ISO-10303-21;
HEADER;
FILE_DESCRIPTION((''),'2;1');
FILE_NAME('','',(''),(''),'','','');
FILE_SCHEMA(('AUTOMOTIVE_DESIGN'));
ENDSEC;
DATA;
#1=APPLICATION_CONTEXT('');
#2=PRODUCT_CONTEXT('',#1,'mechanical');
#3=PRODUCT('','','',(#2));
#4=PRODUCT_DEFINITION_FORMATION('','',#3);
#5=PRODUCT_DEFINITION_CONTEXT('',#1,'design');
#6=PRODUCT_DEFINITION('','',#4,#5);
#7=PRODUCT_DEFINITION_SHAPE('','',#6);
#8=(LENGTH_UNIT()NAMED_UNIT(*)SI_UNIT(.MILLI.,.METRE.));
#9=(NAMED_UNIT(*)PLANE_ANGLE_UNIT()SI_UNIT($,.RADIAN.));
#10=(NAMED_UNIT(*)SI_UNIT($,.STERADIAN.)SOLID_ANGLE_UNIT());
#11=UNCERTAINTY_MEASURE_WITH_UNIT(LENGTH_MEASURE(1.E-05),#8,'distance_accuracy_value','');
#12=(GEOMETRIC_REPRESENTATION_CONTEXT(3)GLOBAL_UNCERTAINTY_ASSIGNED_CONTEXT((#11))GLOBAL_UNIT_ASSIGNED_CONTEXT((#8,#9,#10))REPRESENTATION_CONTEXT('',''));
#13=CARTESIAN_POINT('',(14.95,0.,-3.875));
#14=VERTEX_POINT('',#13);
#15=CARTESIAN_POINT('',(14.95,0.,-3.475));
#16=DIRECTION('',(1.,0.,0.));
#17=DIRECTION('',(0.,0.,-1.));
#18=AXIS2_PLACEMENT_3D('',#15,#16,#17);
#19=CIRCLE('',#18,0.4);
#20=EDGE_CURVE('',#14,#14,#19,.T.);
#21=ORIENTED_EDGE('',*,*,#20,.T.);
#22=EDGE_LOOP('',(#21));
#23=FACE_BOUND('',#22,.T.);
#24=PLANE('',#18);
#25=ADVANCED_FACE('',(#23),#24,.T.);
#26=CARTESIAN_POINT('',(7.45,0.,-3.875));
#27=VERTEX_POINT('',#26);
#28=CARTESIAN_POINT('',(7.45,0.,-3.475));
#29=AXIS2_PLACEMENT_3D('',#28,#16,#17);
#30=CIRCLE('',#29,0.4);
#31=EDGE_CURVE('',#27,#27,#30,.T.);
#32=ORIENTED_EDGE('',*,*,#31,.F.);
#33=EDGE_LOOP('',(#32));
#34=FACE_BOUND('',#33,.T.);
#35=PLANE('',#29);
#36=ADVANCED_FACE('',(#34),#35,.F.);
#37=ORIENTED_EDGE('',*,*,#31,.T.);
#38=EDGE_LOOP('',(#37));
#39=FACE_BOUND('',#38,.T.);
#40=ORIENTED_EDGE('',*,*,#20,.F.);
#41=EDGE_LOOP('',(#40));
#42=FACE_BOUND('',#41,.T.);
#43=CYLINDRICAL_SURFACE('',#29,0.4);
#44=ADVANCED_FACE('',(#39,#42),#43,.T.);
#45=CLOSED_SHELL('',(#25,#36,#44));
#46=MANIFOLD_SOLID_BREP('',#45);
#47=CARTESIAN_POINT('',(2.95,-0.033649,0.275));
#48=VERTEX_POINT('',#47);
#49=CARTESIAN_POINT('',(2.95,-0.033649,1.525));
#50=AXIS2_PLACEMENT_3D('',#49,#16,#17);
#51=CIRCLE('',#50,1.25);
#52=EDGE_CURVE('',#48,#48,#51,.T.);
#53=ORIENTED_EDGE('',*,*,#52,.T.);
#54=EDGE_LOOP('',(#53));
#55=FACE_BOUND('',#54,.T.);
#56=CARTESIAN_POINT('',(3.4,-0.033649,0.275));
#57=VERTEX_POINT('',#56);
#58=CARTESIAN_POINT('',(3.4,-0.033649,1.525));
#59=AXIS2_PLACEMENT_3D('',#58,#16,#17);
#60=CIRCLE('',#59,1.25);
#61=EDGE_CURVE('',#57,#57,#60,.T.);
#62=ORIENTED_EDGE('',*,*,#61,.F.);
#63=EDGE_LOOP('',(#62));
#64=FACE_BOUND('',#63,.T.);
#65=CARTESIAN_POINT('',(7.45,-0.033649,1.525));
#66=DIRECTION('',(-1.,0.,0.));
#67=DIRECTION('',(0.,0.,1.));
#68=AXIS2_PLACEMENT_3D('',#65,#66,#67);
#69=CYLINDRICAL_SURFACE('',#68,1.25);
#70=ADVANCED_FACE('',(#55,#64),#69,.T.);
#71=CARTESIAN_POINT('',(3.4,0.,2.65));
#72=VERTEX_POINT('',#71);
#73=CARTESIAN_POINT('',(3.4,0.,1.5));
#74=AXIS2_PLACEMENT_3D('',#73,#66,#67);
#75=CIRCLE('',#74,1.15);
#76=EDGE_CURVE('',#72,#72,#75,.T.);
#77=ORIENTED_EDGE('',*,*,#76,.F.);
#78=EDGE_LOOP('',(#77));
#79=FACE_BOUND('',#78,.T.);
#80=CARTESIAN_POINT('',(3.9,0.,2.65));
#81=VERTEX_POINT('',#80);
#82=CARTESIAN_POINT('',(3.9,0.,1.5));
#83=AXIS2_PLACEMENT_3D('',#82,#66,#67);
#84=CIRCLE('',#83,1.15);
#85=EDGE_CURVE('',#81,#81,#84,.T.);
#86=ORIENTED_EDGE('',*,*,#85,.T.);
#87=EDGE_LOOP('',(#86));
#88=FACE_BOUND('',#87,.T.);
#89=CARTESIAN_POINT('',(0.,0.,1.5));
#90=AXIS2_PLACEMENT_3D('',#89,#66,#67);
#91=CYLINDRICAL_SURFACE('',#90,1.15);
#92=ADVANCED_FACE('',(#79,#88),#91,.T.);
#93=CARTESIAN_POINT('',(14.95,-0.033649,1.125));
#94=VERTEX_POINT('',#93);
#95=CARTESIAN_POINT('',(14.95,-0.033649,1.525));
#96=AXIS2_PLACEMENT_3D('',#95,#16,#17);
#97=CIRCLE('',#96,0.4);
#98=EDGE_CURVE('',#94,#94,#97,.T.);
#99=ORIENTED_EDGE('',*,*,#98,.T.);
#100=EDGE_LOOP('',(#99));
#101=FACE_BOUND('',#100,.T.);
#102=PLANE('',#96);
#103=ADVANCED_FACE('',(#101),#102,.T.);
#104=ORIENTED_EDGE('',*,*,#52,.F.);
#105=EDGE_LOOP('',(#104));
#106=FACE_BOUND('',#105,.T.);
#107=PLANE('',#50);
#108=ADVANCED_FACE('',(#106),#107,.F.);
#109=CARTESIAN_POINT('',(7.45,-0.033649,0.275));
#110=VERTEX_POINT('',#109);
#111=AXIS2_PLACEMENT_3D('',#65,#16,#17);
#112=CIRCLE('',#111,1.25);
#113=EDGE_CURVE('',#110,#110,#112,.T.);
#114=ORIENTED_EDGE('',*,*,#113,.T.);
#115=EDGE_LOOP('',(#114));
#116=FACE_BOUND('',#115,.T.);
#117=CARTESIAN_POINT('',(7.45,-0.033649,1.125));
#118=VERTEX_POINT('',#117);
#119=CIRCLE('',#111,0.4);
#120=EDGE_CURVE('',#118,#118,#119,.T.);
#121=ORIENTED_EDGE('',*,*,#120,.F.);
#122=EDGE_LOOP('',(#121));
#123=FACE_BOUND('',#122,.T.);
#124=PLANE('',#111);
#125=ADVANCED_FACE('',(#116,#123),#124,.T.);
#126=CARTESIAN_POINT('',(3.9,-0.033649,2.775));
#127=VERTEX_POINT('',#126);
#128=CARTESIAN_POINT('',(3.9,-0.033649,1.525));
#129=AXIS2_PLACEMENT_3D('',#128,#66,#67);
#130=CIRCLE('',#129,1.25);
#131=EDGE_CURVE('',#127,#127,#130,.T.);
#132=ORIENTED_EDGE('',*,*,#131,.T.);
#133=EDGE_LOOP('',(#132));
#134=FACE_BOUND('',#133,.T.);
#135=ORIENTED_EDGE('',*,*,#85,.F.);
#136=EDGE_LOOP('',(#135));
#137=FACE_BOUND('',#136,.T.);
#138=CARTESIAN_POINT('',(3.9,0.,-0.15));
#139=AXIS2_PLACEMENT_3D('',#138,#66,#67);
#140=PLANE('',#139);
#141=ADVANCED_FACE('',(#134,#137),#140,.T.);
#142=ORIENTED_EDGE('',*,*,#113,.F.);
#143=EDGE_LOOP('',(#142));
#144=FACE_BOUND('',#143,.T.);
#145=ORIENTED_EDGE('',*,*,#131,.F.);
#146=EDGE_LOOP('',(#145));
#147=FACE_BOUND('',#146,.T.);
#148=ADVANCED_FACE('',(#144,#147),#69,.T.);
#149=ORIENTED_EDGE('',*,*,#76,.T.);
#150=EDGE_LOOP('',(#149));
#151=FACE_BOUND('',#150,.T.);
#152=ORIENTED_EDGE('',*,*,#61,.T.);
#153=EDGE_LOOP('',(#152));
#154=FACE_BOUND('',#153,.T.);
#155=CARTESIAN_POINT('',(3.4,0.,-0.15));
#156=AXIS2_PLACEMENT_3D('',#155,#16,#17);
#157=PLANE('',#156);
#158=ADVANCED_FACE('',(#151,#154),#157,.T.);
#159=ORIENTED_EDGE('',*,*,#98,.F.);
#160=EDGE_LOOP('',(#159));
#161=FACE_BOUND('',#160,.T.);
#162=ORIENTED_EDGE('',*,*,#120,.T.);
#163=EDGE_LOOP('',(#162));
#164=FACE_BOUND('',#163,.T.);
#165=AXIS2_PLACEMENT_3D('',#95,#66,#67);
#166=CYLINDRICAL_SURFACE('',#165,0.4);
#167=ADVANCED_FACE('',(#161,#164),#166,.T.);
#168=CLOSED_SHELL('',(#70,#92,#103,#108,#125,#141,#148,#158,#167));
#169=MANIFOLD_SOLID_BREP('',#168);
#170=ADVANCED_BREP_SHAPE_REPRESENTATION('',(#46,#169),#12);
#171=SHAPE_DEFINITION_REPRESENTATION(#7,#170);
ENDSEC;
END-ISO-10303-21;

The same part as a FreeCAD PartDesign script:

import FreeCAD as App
import Part
import Sketcher
Q = App.Units.Quantity

doc = App.newDocument("Part")
body = doc.addObject("PartDesign::Body", "Body")

# Sketch on YZ plane
sketch1 = doc.addObject("Sketcher::SketchObject", "Sketch")
body.addObject(sketch1)
sketch1.AttachmentSupport = (doc.YZ_Plane, [""])
sketch1.MapMode = "FlatFace"
sketch1.AttachmentOffset = App.Placement(App.Vector(0, 0, 2.95), App.Rotation())
sketch1.addGeometry(Part.Circle(App.Vector(0, 1.5, 0), App.Vector(0, 0, 1), 1.2), False)
sketch1.addConstraint([
    Sketcher.Constraint("Diameter", 0, Q("2.5 mm")),
    Sketcher.Constraint("DistanceY", -1, 1, 0, 3, Q("1.525 mm")),
    Sketcher.Constraint("DistanceX", 0, 3, -1, 1, Q("0.033649 mm")),
])
pad1 = doc.addObject("PartDesign::Pad", "Pad")
body.addObject(pad1)
pad1.Profile = sketch1
pad1.Length = 4.5

# Sketch on XZ plane
sketch2 = doc.addObject("Sketcher::SketchObject", "Sketch001")
body.addObject(sketch2)
sketch2.AttachmentSupport = (doc.XZ_Plane, [""])
sketch2.MapMode = "FlatFace"
sketch2.addGeometry([
    Part.LineSegment(App.Vector(3.4, -0.1, 0), App.Vector(3.4, 0.3, 0)),
    Part.LineSegment(App.Vector(3.4, 0.3, 0), App.Vector(3.9, 0.3, 0)),
    Part.LineSegment(App.Vector(3.9, 0.3, 0), App.Vector(3.9, -0.1, 0)),
    Part.LineSegment(App.Vector(3.9, -0.1, 0), App.Vector(3.4, -0.1, 0)),
], False)
sketch2.addGeometry(Part.LineSegment(App.Vector(3.4, 1.5, 0), App.Vector(3.9, 1.5, 0)), True)  # axis
sketch2.addConstraint([
    Sketcher.Constraint("Coincident", 0, 2, 1, 1),
    Sketcher.Constraint("Coincident", 1, 2, 2, 1),
    Sketcher.Constraint("Coincident", 2, 2, 3, 1),
    Sketcher.Constraint("Coincident", 3, 2, 0, 1),
    Sketcher.Constraint("Vertical", 0),
    Sketcher.Constraint("Horizontal", 1),
    Sketcher.Constraint("Vertical", 2),
    Sketcher.Constraint("Horizontal", 3),
    Sketcher.Constraint("Horizontal", 4),
    Sketcher.Constraint("Vertical", 3, 2, 4, 1),
    Sketcher.Constraint("Vertical", 2, 2, 4, 2),
    Sketcher.Constraint("Equal", 4, 0),
    Sketcher.Constraint("DistanceX", 1, 1, 1, 2, Q("0.5 mm")),
    Sketcher.Constraint("DistanceX", -1, 1, 0, 2, Q("3.4 mm")),
    Sketcher.Constraint("DistanceY", -1, 1, 4, 1, Q("1.5 mm")),
    Sketcher.Constraint("DistanceY", -1, 1, 0, 2, Q("0.35 mm")),
])
groove = doc.addObject("PartDesign::Groove", "Groove")
body.addObject(groove)
groove.Profile = sketch2
groove.ReferenceAxis = (sketch2, ["Axis0"])
groove.Angle = 360

# Sketch on YZ plane
sketch3 = doc.addObject("Sketcher::SketchObject", "Sketch002")
body.addObject(sketch3)
sketch3.AttachmentSupport = (doc.YZ_Plane, [""])
sketch3.MapMode = "FlatFace"
sketch3.AttachmentOffset = App.Placement(App.Vector(0, 0, 7.45), App.Rotation())
sketch3.addGeometry(Part.Circle(App.Vector(-0.03, 1.52, 0), App.Vector(0, 0, 1), 0.4), False)
sketch3.addConstraint([
    Sketcher.Constraint("Diameter", 0, Q("0.8 mm")),
    Sketcher.Constraint("DistanceY", -1, 1, 0, 3, Q("1.525 mm")),
    Sketcher.Constraint("DistanceX", 0, 3, -1, 1, Q("0.033649 mm")),
])
pad2 = doc.addObject("PartDesign::Pad", "Pad001")
body.addObject(pad2)
pad2.Profile = sketch3
pad2.Length = 7.5
body2 = doc.addObject("PartDesign::Body", "Body001")

# Sketch on YZ plane
sketch4 = doc.addObject("Sketcher::SketchObject", "Sketch003")
body2.addObject(sketch4)
sketch4.AttachmentSupport = (doc.getObject("YZ_Plane001"), [""])
sketch4.MapMode = "FlatFace"
sketch4.AttachmentOffset = App.Placement(App.Vector(0, 0, 14.95), App.Rotation())
sketch4.addGeometry(Part.Circle(App.Vector(0, -3.48, 0), App.Vector(0, 0, 1), 0.4), False)
sketch4.addConstraint([
    Sketcher.Constraint("PointOnObject", 0, 3, -2),
    Sketcher.Constraint("Diameter", 0, Q("0.8 mm")),
    Sketcher.Constraint("DistanceY", 0, 3, -1, 1, Q("3.475 mm")),
])
pad3 = doc.addObject("PartDesign::Pad", "Pad002")
body2.addObject(pad3)
pad3.Profile = sketch4
pad3.Length = 7.5
pad3.Reversed = True

doc.recompute()
